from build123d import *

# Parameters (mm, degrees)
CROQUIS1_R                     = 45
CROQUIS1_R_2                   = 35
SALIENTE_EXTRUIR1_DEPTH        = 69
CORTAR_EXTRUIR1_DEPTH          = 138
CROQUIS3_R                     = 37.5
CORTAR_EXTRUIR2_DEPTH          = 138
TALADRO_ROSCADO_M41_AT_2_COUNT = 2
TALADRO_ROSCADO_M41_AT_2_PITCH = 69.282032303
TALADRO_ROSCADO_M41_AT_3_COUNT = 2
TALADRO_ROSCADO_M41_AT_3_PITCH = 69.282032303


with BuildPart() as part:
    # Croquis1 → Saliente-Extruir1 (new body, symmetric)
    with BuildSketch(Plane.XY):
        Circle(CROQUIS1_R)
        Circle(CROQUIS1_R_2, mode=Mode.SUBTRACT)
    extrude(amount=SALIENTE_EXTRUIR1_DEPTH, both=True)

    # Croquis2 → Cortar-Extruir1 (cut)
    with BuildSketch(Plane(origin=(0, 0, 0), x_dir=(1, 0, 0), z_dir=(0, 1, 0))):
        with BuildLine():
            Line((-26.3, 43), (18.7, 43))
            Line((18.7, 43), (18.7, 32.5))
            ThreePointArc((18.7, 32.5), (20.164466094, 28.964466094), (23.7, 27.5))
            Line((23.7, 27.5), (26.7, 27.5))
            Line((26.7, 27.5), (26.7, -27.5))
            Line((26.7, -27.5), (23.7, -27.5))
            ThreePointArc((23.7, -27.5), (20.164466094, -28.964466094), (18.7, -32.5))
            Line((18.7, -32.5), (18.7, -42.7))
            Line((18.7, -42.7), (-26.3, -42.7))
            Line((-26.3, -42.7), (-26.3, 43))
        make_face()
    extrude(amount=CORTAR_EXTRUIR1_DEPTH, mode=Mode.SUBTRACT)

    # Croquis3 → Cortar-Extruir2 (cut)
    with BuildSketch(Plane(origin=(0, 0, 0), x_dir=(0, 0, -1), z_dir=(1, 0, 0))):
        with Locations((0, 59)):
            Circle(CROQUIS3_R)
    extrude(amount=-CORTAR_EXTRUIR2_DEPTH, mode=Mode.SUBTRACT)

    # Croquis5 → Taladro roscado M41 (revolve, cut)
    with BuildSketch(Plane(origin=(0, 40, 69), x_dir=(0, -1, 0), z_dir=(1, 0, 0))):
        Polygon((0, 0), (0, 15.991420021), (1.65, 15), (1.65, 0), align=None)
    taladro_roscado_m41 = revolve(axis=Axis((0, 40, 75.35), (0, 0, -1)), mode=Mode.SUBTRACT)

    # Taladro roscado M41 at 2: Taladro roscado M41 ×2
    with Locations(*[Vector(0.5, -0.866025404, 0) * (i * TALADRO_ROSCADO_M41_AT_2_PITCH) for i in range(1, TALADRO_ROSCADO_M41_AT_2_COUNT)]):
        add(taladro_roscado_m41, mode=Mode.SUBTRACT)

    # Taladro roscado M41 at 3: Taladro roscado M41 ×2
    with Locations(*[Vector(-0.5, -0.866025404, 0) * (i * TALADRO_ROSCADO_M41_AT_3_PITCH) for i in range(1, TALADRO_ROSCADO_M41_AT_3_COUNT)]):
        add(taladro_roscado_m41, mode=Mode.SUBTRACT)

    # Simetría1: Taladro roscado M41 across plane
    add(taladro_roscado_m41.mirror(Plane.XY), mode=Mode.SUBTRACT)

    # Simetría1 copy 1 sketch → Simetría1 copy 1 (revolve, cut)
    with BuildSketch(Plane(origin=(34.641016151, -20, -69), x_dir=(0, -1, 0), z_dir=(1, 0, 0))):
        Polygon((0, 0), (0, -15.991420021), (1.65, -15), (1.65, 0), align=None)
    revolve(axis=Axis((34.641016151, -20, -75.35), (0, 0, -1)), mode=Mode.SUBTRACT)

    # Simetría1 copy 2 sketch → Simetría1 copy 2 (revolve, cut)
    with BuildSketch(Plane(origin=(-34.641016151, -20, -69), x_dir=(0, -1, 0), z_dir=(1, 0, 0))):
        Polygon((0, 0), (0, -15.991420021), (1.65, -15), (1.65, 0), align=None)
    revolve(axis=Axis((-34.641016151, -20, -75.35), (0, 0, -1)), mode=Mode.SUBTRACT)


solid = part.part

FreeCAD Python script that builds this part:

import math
import FreeCAD as App
import Part
import Sketcher
Q = App.Units.Quantity


def add_polygon(sketch, points):
    """Adds a closed chain of lines whose ends are joined by coincident constraints."""
    first, n = sketch.GeometryCount, len(points)
    for a, b in zip(points, points[1:] + points[:1]):
        sketch.addGeometry(Part.LineSegment(App.Vector(*a, 0), App.Vector(*b, 0)), False)
    for i in range(n):
        sketch.addConstraint(Sketcher.Constraint("Coincident", first + i, 2, first + (i + 1) % n, 1))

doc = App.newDocument("Part")
body = doc.addObject("PartDesign::Body", "Body")

# Sketch on XY plane
sketch1 = doc.addObject("Sketcher::SketchObject", "Sketch")
body.addObject(sketch1)
sketch1.AttachmentSupport = (doc.XY_Plane, [""])
sketch1.MapMode = "FlatFace"
sketch1.addGeometry([
    Part.Circle(App.Vector(0, 0, 0), App.Vector(0, 0, 1), 45),
    Part.Circle(App.Vector(0, 0, 0), App.Vector(0, 0, 1), 35),
], False)
sketch1.addConstraint([
    Sketcher.Constraint("Coincident", 0, 3, -1, 1),
    Sketcher.Constraint("Coincident", 1, 3, -1, 1),
    Sketcher.Constraint("Diameter", 0, Q("90 mm")),
    Sketcher.Constraint("Diameter", 1, Q("70 mm")),
])
pad1 = doc.addObject("PartDesign::Pad", "Pad")
body.addObject(pad1)
pad1.Profile = sketch1
pad1.Length = 138
pad1.Midplane = True

# Sketch on XZ plane
sketch2 = doc.addObject("Sketcher::SketchObject", "Sketch001")
body.addObject(sketch2)
sketch2.AttachmentSupport = (doc.XZ_Plane, [""])
sketch2.MapMode = "FlatFace"
sketch2.addGeometry([
    Part.LineSegment(App.Vector(18.7, -43, 0), App.Vector(-26.3, -43, 0)),  # 0
    Part.LineSegment(App.Vector(-26.3, -43, 0), App.Vector(-26.3, 42.7, 0)),  # 1
    Part.LineSegment(App.Vector(-26.3, 42.7, 0), App.Vector(18.7, 42.7, 0)),  # 2
    Part.LineSegment(App.Vector(18.7, 42.7, 0), App.Vector(18.7, 32.5, 0)),  # 3
    Part.ArcOfCircle(Part.Circle(App.Vector(23.7, 32.5, 0), App.Vector(0, 0, 1), 5), math.radians(180), math.radians(270)),  # 4
    Part.LineSegment(App.Vector(23.7, 27.5, 0), App.Vector(26.7, 27.5, 0)),  # 5
    Part.LineSegment(App.Vector(26.7, 27.5, 0), App.Vector(26.7, -27.5, 0)),  # 6
    Part.LineSegment(App.Vector(26.7, -27.5, 0), App.Vector(23.7, -27.5, 0)),  # 7
    Part.ArcOfCircle(Part.Circle(App.Vector(23.7, -32.5, 0), App.Vector(0, 0, 1), 5), math.radians(90), math.radians(180)),  # 8
    Part.LineSegment(App.Vector(18.7, -32.5, 0), App.Vector(18.7, -43, 0)),  # 9
], False)
sketch2.addConstraint([
    Sketcher.Constraint("Coincident", 0, 2, 1, 1),
    Sketcher.Constraint("Coincident", 1, 2, 2, 1),
    Sketcher.Constraint("Coincident", 2, 2, 3, 1),
    Sketcher.Constraint("Tangent", 3, 2, 4, 1),
    Sketcher.Constraint("Tangent", 4, 2, 5, 1),
    Sketcher.Constraint("Coincident", 5, 2, 6, 1),
    Sketcher.Constraint("Coincident", 6, 2, 7, 1),
    Sketcher.Constraint("Tangent", 7, 2, 8, 1),
    Sketcher.Constraint("Tangent", 8, 2, 9, 1),
    Sketcher.Constraint("Coincident", 9, 2, 0, 1),
    Sketcher.Constraint("Horizontal", 0),
    Sketcher.Constraint("Vertical", 1),
    Sketcher.Constraint("Horizontal", 2),
    Sketcher.Constraint("Vertical", 3),
    Sketcher.Constraint("Horizontal", 5),
    Sketcher.Constraint("Vertical", 6),
    Sketcher.Constraint("Horizontal", 7),
    Sketcher.Constraint("Vertical", 9),
    Sketcher.Constraint("Equal", 4, 8),
    Sketcher.Constraint("Symmetric", 4, 3, 8, 3, -1),
    Sketcher.Constraint("Radius", 4, Q("5 mm")),
    Sketcher.Constraint("DistanceX", 0, 2, 0, 1, Q("45 mm")),
    Sketcher.Constraint("DistanceX", 5, 1, 5, 2, Q("3 mm")),
    Sketcher.Constraint("DistanceY", 6, 2, 6, 1, Q("55 mm")),
    Sketcher.Constraint("DistanceY", 1, 1, 1, 2, Q("85.7 mm")),
    Sketcher.Constraint("DistanceY", 3, 2, 3, 1, Q("10.2 mm")),
    Sketcher.Constraint("DistanceX", -1, 1, 4, 3, Q("23.7 mm")),
])
pocket1 = doc.addObject("PartDesign::Pocket", "Pocket")
body.addObject(pocket1)
pocket1.Profile = sketch2
pocket1.Length = 138

# Sketch on YZ plane
sketch3 = doc.addObject("Sketcher::SketchObject", "Sketch002")
body.addObject(sketch3)
sketch3.AttachmentSupport = (doc.YZ_Plane, [""])
sketch3.MapMode = "FlatFace"
sketch3.addGeometry(Part.Circle(App.Vector(59, 0, 0), App.Vector(0, 0, 1), 37.5), False)
sketch3.addConstraint([
    Sketcher.Constraint("PointOnObject", 0, 3, -1),
    Sketcher.Constraint("Diameter", 0, Q("75 mm")),
    Sketcher.Constraint("DistanceX", -1, 1, 0, 3, Q("59 mm")),
])
pocket2 = doc.addObject("PartDesign::Pocket", "Pocket001")
body.addObject(pocket2)
pocket2.Profile = sketch3
pocket2.Length = 138

# Sketch on YZ plane
sketch4 = doc.addObject("Sketcher::SketchObject", "Sketch003")
body.addObject(sketch4)
sketch4.AttachmentSupport = (doc.YZ_Plane, [""])
sketch4.MapMode = "FlatFace"
add_polygon(sketch4, [(40, 53.00858), (40, 69), (38.35, 69), (38.35, 54)])  # lines 0-3
sketch4.addGeometry(Part.LineSegment(App.Vector(40, 69, 0), App.Vector(40, 53.00858, 0)), True)  # axis
sketch4.addConstraint([
    Sketcher.Constraint("Vertical", 0),
    Sketcher.Constraint("Horizontal", 1),
    Sketcher.Constraint("Vertical", 2),
    Sketcher.Constraint("Vertical", 4),
    Sketcher.Constraint("Coincident", 4, 1, 0, 2),
    Sketcher.Constraint("Equal", 0, 4),
    Sketcher.Constraint("DistanceY", 2, 2, 2, 1, Q("15 mm")),
    Sketcher.Constraint("Angle", 3, Q("-31 deg")),
    Sketcher.Constraint("DistanceX", -1, 1, 0, 2, Q("40 mm")),
    Sketcher.Constraint("DistanceY", -1, 1, 0, 2, Q("69 mm")),
    Sketcher.Constraint("DistanceX", 1, 2, 1, 1, Q("1.65 mm")),
])
groove = doc.addObject("PartDesign::Groove", "Groove")
body.addObject(groove)
groove.Profile = sketch4
groove.ReferenceAxis = (sketch4, ["Axis0"])
groove.Angle = 360
doc.recompute()

datumline = doc.addObject("PartDesign::Line", "DatumLine")
body.addObject(datumline)
datumline.Placement = App.Placement(App.Vector(0, 0, 0), App.Rotation(App.Vector(0, 0, 1), App.Vector(0.5, -0.866025404, 0)))
linearpattern = doc.addObject("PartDesign::LinearPattern", "LinearPattern")
body.addObject(linearpattern)
linearpattern.Originals = [groove]
linearpattern.Direction = (datumline, [""])
linearpattern.Mode = "offset"
linearpattern.Offset = 69.282032
linearpattern.Occurrences = 2
body.Tip = linearpattern
doc.recompute()

datumline2 = doc.addObject("PartDesign::Line", "DatumLine001")
body.addObject(datumline2)
datumline2.Placement = App.Placement(App.Vector(0, 0, 0), App.Rotation(App.Vector(0, 0, 1), App.Vector(-0.5, -0.866025404, 0)))
linearpattern2 = doc.addObject("PartDesign::LinearPattern", "LinearPattern001")
body.addObject(linearpattern2)
linearpattern2.Originals = [groove]
linearpattern2.Direction = (datumline2, [""])
linearpattern2.Mode = "offset"
linearpattern2.Offset = 69.282032
linearpattern2.Occurrences = 2
body.Tip = linearpattern2
doc.recompute()

mirrored = doc.addObject("PartDesign::Mirrored", "Mirrored")
body.addObject(mirrored)
mirrored.Originals = [groove]
mirrored.MirrorPlane = (doc.XY_Plane, [""])
body.Tip = mirrored

# Sketch on YZ plane
sketch5 = doc.addObject("Sketcher::SketchObject", "Sketch004")
body.addObject(sketch5)
sketch5.AttachmentSupport = (doc.YZ_Plane, [""])
sketch5.MapMode = "FlatFace"
sketch5.AttachmentOffset = App.Placement(App.Vector(0, 0, 34.641016), App.Rotation())
add_polygon(sketch5, [(-20, -69), (-20, -53.00858), (-21.65, -54), (-21.65, -69)])  # lines 0-3
sketch5.addGeometry(Part.LineSegment(App.Vector(-20, -53.00858, 0), App.Vector(-20, -69, 0)), True)  # axis
sketch5.addConstraint([
    Sketcher.Constraint("Vertical", 0),
    Sketcher.Constraint("Vertical", 2),
    Sketcher.Constraint("Horizontal", 3),
    Sketcher.Constraint("Vertical", 4),
    Sketcher.Constraint("Coincident", 4, 1, 0, 2),
    Sketcher.Constraint("Horizontal", 2, 2, 4, 2),
    Sketcher.Constraint("DistanceY", 2, 2, 2, 1, Q("15 mm")),
    Sketcher.Constraint("Angle", 1, Q("-149 deg")),
    Sketcher.Constraint("DistanceX", 0, 2, -1, 1, Q("20 mm")),
    Sketcher.Constraint("DistanceY", 1, 2, -1, 1, Q("54 mm")),
    Sketcher.Constraint("DistanceX", 3, 1, 3, 2, Q("1.65 mm")),
])
groove2 = doc.addObject("PartDesign::Groove", "Groove001")
body.addObject(groove2)
groove2.Profile = sketch5
groove2.ReferenceAxis = (sketch5, ["Axis0"])
groove2.Angle = 360

# Sketch on YZ plane
sketch6 = doc.addObject("Sketcher::SketchObject", "Sketch005")
body.addObject(sketch6)
sketch6.AttachmentSupport = (doc.YZ_Plane, [""])
sketch6.MapMode = "FlatFace"
sketch6.AttachmentOffset = App.Placement(App.Vector(0, 0, -34.641016), App.Rotation())
add_polygon(sketch6, [(-20, -69), (-20, -53.00858), (-21.65, -54), (-21.65, -69)])  # lines 0-3
sketch6.addGeometry(Part.LineSegment(App.Vector(-20, -53.00858, 0), App.Vector(-20, -69, 0)), True)  # axis
sketch6.addConstraint([
    Sketcher.Constraint("Vertical", 0),
    Sketcher.Constraint("Vertical", 2),
    Sketcher.Constraint("Horizontal", 3),
    Sketcher.Constraint("Vertical", 4),
    Sketcher.Constraint("Coincident", 4, 1, 0, 2),
    Sketcher.Constraint("Horizontal", 2, 2, 4, 2),
    Sketcher.Constraint("DistanceY", 2, 2, 2, 1, Q("15 mm")),
    Sketcher.Constraint("Angle", 1, Q("-149 deg")),
    Sketcher.Constraint("DistanceX", 0, 2, -1, 1, Q("20 mm")),
    Sketcher.Constraint("DistanceY", 1, 2, -1, 1, Q("54 mm")),
    Sketcher.Constraint("DistanceX", 3, 1, 3, 2, Q("1.65 mm")),
])
groove3 = doc.addObject("PartDesign::Groove", "Groove002")
body.addObject(groove3)
groove3.Profile = sketch6
groove3.ReferenceAxis = (sketch6, ["Axis0"])
groove3.Angle = 360

doc.recompute()
